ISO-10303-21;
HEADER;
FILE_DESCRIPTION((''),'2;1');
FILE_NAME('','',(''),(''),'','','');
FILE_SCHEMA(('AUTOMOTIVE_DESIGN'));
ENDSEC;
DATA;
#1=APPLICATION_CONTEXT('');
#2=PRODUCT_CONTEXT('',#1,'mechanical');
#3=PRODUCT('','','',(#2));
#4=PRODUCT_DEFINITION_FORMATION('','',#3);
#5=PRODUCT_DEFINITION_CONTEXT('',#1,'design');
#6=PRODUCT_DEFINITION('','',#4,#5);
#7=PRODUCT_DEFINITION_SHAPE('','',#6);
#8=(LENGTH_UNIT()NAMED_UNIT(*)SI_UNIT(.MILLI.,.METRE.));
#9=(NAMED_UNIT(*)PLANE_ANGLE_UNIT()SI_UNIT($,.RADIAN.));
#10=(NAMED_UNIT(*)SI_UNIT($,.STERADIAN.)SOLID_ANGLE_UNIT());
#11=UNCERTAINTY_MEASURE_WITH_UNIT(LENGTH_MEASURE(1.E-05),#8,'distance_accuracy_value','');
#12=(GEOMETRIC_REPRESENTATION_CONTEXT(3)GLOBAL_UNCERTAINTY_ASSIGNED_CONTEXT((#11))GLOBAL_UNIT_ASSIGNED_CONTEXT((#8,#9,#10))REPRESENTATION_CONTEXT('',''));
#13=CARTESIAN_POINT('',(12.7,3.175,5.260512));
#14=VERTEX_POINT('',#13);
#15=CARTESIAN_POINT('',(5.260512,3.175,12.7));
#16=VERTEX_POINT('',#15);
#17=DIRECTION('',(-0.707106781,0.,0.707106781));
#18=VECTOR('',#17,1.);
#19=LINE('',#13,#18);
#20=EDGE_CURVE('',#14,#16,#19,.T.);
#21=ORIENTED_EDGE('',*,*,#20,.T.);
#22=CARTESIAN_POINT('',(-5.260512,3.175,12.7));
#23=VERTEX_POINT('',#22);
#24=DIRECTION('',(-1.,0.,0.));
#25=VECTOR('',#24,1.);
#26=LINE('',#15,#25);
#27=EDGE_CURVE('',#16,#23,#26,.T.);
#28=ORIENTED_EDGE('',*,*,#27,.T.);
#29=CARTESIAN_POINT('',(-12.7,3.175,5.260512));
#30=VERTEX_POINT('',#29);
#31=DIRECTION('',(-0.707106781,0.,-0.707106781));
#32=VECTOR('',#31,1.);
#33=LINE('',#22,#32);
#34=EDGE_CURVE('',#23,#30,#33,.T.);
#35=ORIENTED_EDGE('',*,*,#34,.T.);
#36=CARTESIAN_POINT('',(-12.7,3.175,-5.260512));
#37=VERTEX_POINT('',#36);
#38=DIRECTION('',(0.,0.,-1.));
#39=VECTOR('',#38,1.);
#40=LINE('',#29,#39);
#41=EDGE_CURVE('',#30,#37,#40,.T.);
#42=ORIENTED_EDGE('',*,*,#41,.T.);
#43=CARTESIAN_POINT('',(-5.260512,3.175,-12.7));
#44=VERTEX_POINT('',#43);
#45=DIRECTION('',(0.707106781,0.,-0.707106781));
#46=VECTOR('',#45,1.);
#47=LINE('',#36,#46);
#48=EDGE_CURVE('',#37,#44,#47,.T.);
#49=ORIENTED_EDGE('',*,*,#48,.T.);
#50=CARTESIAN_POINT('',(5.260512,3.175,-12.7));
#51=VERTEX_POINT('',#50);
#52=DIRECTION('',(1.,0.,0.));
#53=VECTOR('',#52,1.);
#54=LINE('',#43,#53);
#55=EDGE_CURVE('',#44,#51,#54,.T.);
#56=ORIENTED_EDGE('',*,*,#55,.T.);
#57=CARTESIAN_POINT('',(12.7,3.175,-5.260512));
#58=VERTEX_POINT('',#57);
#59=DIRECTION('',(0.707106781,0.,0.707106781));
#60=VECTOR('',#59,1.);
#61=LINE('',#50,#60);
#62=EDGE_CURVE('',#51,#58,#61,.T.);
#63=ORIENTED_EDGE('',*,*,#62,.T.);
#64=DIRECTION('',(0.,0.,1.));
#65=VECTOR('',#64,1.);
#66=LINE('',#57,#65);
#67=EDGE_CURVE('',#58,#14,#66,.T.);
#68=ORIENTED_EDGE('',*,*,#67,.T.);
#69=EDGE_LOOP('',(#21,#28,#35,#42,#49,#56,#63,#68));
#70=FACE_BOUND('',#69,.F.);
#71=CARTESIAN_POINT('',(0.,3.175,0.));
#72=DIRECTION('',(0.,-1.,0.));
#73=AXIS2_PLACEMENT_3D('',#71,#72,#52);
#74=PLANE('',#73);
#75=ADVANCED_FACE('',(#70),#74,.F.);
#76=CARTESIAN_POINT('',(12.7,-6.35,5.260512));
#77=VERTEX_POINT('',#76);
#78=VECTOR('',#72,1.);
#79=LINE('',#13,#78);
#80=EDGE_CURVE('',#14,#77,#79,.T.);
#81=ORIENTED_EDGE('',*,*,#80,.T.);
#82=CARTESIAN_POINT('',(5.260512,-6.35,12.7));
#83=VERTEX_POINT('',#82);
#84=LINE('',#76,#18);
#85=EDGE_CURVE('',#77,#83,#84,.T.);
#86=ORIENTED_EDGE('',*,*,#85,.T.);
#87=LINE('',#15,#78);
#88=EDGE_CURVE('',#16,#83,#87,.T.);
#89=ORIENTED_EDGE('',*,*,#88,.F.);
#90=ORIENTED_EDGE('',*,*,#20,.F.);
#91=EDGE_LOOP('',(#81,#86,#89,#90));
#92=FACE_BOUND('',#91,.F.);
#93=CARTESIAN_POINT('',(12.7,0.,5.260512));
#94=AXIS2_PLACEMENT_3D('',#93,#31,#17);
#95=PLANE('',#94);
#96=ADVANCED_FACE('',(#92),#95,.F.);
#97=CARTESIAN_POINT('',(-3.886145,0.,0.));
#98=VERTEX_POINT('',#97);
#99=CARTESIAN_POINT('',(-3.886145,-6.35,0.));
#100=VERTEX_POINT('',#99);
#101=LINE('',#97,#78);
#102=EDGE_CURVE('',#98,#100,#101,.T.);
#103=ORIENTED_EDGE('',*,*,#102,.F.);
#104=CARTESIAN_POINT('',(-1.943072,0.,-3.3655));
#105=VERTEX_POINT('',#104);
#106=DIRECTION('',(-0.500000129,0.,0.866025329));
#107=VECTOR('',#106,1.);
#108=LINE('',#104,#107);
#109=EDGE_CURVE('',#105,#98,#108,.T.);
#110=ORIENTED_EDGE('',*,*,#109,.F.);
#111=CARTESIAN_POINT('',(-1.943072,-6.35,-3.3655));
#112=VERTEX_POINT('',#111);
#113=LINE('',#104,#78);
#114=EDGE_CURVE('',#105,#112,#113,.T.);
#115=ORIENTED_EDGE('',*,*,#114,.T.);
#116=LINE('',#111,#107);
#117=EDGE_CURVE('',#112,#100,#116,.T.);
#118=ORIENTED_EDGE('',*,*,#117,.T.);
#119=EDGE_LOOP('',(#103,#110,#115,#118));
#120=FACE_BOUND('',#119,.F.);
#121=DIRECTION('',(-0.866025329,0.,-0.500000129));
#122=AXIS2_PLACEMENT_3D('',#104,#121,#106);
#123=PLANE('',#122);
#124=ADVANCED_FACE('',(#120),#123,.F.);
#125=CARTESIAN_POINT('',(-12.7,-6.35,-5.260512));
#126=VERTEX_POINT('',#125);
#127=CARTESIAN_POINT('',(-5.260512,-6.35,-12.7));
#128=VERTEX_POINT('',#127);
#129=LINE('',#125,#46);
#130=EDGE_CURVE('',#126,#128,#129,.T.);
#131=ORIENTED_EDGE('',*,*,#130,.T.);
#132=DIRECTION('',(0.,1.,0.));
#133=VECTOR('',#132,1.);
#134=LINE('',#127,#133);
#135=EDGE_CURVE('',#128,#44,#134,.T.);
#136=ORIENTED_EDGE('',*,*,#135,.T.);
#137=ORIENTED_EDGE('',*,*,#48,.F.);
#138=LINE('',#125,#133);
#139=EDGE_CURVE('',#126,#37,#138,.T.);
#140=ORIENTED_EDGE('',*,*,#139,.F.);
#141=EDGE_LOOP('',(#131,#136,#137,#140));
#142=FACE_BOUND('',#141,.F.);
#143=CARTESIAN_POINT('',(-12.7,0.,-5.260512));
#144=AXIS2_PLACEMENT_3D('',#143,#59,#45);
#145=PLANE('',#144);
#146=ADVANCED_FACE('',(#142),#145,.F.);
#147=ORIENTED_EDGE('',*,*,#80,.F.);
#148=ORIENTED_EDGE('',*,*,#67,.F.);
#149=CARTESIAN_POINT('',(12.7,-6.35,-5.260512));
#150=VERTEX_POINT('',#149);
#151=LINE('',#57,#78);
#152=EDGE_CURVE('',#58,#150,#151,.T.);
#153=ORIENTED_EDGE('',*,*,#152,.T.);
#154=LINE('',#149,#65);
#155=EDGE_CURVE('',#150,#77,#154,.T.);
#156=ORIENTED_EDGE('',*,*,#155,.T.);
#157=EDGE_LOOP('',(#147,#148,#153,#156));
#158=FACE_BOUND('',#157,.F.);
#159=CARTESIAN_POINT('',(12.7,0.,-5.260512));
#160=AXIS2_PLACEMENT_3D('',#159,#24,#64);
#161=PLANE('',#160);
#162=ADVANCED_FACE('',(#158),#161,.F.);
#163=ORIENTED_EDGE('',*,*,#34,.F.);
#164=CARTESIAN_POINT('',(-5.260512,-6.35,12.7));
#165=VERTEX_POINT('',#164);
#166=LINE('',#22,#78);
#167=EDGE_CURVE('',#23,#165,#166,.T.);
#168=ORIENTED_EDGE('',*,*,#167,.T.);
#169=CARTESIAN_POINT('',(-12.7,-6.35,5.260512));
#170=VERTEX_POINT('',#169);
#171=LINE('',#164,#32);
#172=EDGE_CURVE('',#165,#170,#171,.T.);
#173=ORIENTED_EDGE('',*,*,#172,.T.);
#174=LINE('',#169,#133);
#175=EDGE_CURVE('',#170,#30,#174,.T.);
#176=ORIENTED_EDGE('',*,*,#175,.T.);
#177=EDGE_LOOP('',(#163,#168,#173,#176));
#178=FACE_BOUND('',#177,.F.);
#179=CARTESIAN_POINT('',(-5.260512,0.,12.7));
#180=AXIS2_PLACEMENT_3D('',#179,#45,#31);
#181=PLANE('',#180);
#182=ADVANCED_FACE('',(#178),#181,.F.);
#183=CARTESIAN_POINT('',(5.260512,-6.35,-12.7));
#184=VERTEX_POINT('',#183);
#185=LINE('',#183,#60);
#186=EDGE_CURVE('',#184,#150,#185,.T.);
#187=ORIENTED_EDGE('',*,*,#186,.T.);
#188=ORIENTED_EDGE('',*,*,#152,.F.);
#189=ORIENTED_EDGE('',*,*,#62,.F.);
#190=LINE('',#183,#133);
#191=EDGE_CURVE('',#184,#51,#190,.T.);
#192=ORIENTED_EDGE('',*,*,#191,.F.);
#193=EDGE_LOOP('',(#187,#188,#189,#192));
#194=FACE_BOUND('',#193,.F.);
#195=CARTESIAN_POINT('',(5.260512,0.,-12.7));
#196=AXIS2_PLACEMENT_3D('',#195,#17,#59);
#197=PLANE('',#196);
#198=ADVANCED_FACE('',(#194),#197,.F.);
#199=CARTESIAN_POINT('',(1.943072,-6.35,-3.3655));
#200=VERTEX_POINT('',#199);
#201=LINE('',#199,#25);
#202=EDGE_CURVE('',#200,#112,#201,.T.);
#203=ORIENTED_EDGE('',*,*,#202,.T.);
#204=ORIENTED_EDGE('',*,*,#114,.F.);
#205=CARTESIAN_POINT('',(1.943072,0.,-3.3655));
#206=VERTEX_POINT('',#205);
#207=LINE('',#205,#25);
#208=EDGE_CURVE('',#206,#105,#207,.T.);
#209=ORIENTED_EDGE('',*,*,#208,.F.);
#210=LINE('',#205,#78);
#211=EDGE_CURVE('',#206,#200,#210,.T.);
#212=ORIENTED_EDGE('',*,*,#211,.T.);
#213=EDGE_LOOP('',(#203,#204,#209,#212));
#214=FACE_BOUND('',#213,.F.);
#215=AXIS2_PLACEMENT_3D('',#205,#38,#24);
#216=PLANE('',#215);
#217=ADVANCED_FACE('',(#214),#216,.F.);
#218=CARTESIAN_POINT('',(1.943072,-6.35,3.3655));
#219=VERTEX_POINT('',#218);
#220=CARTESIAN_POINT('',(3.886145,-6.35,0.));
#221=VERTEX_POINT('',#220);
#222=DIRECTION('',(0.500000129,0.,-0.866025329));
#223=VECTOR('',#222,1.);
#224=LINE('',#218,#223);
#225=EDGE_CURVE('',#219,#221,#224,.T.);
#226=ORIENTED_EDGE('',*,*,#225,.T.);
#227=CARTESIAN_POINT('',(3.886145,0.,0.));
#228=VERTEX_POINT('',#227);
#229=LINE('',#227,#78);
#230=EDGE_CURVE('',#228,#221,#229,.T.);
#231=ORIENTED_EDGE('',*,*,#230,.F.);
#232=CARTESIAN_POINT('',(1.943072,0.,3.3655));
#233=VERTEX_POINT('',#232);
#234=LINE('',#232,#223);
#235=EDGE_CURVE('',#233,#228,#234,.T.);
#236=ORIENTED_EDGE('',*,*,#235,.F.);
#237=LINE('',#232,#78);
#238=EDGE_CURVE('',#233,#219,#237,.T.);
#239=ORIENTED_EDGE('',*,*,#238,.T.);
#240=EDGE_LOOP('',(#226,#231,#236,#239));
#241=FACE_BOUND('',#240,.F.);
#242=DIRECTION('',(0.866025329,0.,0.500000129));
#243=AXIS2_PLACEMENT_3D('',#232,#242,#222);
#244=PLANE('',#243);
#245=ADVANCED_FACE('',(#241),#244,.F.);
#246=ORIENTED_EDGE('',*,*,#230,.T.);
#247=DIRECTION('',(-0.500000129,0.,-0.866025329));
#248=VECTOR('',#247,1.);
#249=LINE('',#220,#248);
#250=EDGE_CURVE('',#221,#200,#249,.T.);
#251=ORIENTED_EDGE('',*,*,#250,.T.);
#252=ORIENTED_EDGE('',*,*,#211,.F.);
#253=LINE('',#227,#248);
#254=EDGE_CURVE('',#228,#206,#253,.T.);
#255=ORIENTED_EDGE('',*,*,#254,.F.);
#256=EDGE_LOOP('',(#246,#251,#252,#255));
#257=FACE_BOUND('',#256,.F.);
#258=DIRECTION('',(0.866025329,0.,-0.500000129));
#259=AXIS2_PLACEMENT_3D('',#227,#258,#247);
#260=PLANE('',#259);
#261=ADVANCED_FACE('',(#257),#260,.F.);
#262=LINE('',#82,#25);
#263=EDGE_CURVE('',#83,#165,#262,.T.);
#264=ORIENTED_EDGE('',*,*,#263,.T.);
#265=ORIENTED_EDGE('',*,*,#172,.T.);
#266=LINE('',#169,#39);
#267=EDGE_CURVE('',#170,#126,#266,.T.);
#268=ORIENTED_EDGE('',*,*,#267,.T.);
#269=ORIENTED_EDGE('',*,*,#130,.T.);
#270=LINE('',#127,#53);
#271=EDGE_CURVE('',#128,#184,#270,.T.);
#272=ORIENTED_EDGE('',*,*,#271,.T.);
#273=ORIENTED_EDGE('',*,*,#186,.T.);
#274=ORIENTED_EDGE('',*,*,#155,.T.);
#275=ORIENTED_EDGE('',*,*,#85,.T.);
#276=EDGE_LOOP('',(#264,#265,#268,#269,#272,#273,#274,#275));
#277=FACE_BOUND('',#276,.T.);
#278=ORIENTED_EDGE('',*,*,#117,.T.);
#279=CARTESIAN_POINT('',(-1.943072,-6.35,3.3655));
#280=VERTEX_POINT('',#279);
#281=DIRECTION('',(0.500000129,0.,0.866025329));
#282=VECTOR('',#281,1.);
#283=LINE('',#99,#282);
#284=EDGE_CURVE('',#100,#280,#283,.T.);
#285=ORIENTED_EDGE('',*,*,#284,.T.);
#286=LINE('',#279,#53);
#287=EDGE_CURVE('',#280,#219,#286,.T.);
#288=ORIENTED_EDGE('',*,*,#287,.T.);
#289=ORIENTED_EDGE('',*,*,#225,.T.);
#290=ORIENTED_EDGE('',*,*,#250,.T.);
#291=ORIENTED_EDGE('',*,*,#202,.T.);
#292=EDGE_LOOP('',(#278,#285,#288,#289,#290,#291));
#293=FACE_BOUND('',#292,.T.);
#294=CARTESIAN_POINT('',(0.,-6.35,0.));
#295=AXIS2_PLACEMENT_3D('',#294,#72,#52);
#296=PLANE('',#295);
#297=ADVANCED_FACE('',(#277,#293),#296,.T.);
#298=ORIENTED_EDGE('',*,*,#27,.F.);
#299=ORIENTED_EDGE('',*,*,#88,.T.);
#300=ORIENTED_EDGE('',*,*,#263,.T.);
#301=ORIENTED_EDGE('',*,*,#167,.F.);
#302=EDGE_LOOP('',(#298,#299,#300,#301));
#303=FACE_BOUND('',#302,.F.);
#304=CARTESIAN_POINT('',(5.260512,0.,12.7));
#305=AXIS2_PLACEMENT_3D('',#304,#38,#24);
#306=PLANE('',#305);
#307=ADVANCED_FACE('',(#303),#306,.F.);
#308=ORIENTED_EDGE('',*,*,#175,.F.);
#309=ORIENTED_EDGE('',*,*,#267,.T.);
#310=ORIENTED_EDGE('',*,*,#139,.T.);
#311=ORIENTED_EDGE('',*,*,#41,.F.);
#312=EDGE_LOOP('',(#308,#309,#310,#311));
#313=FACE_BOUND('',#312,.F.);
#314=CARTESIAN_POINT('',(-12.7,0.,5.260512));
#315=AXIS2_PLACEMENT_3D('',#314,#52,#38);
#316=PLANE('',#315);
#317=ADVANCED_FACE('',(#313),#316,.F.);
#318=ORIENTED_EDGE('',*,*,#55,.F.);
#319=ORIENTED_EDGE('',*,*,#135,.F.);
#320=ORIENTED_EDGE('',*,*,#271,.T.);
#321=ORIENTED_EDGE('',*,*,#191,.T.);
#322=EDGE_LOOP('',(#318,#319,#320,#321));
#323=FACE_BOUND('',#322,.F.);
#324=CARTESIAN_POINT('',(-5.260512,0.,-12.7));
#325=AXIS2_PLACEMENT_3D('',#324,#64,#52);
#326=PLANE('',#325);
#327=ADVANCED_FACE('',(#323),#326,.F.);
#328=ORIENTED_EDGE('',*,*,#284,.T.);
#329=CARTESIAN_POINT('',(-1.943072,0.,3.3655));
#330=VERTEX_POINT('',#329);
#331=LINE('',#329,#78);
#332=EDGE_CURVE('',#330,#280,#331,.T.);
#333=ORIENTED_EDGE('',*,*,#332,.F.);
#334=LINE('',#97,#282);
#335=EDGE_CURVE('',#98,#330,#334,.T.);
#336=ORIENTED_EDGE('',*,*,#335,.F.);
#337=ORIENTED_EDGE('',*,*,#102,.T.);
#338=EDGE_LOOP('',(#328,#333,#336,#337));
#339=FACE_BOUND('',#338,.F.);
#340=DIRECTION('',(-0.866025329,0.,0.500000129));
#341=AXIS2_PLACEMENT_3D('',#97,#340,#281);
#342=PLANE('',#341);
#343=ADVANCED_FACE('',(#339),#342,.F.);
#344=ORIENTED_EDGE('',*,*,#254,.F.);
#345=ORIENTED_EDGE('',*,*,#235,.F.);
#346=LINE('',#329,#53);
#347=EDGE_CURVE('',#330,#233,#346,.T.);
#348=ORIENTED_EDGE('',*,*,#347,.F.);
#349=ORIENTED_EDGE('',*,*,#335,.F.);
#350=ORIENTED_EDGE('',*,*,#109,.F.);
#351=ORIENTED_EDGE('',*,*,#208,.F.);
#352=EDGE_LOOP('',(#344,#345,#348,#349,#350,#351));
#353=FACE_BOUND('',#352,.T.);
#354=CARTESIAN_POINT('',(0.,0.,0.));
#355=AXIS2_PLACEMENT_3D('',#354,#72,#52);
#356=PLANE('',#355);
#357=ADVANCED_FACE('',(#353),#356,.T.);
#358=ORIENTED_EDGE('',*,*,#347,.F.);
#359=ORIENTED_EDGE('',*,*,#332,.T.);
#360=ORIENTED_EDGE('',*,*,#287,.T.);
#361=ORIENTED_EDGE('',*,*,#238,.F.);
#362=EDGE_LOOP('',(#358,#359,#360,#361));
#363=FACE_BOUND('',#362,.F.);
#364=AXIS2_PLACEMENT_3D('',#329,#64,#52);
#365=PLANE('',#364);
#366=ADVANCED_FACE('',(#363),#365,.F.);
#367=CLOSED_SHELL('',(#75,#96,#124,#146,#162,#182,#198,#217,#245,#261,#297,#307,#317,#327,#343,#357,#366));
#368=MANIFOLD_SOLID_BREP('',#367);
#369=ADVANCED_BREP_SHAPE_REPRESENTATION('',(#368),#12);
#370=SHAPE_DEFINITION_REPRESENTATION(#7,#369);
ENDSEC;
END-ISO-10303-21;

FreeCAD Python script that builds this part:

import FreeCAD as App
import Part
import Sketcher
Q = App.Units.Quantity

doc = App.newDocument("Part")
body = doc.addObject("PartDesign::Body", "Body")

# Sketch on XZ plane
sketch1 = doc.addObject("Sketcher::SketchObject", "Sketch")
body.addObject(sketch1)
sketch1.AttachmentSupport = (doc.XZ_Plane, [""])
sketch1.MapMode = "FlatFace"
sketch1.addGeometry([
    Part.LineSegment(App.Vector(5, 13, 0), App.Vector(-5, 13, 0)),  # 0
    Part.LineSegment(App.Vector(-5, 13, 0), App.Vector(-13, 5, 0)),  # 1
    Part.LineSegment(App.Vector(-13, 5, 0), App.Vector(-13, -5, 0)),  # 2
    Part.LineSegment(App.Vector(-13, -5, 0), App.Vector(-5, -13, 0)),  # 3
    Part.LineSegment(App.Vector(-5, -13, 0), App.Vector(5, -13, 0)),  # 4
    Part.LineSegment(App.Vector(5, -13, 0), App.Vector(13, -5, 0)),  # 5
    Part.LineSegment(App.Vector(13, -5, 0), App.Vector(13, 5, 0)),  # 6
    Part.LineSegment(App.Vector(13, 5, 0), App.Vector(5, 13, 0)),  # 7
], False)
sketch1.addConstraint([
    Sketcher.Constraint("Coincident", 0, 2, 1, 1),
    Sketcher.Constraint("Coincident", 1, 2, 2, 1),
    Sketcher.Constraint("Coincident", 2, 2, 3, 1),
    Sketcher.Constraint("Coincident", 3, 2, 4, 1),
    Sketcher.Constraint("Coincident", 4, 2, 5, 1),
    Sketcher.Constraint("Coincident", 5, 2, 6, 1),
    Sketcher.Constraint("Coincident", 6, 2, 7, 1),
    Sketcher.Constraint("Coincident", 7, 2, 0, 1),
    Sketcher.Constraint("Horizontal", 0),
    Sketcher.Constraint("Vertical", 2),
    Sketcher.Constraint("Horizontal", 4),
    Sketcher.Constraint("Vertical", 6),
    Sketcher.Constraint("Symmetric", 0, 2, 4, 2, -1, 1),
    Sketcher.Constraint("Symmetric", 1, 2, 5, 2, -1, 1),
    Sketcher.Constraint("Perpendicular", 1, 3),
    Sketcher.Constraint("Perpendicular", 5, 7),
    Sketcher.Constraint("Horizontal", 2, 2, 5, 2),
    Sketcher.Constraint("Horizontal", 1, 2, 6, 2),
    Sketcher.Constraint("Vertical", 0, 2, 3, 2),
    Sketcher.Constraint("Equal", 4, 2),
    Sketcher.Constraint("DistanceY", 3, 2, 0, 2, Q("1 in")),
    Sketcher.Constraint("DistanceX", 0, 2, 0, 1, Q("10.521024 mm")),
])
pad1 = doc.addObject("PartDesign::Pad", "Pad")
body.addObject(pad1)
pad1.Profile = sketch1
pad1.Length = Q("0.125 in")
pad1.Reversed = True

# Sketch on XZ plane
sketch2 = doc.addObject("Sketcher::SketchObject", "Sketch001")
body.addObject(sketch2)
sketch2.AttachmentSupport = (doc.XZ_Plane, [""])
sketch2.MapMode = "FlatFace"
sketch2.addGeometry([
    Part.LineSegment(App.Vector(5.3, -12.7, 0), App.Vector(12.7, -5.3, 0)),  # 0
    Part.LineSegment(App.Vector(12.7, -5.3, 0), App.Vector(12.7, 5.3, 0)),  # 1
    Part.LineSegment(App.Vector(12.7, 5.3, 0), App.Vector(5.3, 12.7, 0)),  # 2
    Part.LineSegment(App.Vector(5.3, 12.7, 0), App.Vector(-5.3, 12.7, 0)),  # 3
    Part.LineSegment(App.Vector(-5.3, 12.7, 0), App.Vector(-12.7, 5.3, 0)),  # 4
    Part.LineSegment(App.Vector(-12.7, 5.3, 0), App.Vector(-12.7, -5.3, 0)),  # 5
    Part.LineSegment(App.Vector(-12.7, -5.3, 0), App.Vector(-5.3, -12.7, 0)),  # 6
    Part.LineSegment(App.Vector(-5.3, -12.7, 0), App.Vector(5.3, -12.7, 0)),  # 7
    Part.LineSegment(App.Vector(-1.9, -3.4, 0), App.Vector(-3.9, 0, 0)),  # 8
    Part.LineSegment(App.Vector(-3.9, 0, 0), App.Vector(-1.9, 3.4, 0)),  # 9
    Part.LineSegment(App.Vector(-1.9, 3.4, 0), App.Vector(1.9, 3.4, 0)),  # 10
    Part.LineSegment(App.Vector(1.9, 3.4, 0), App.Vector(3.9, 0, 0)),  # 11
    Part.LineSegment(App.Vector(3.9, 0, 0), App.Vector(1.9, -3.4, 0)),  # 12
    Part.LineSegment(App.Vector(1.9, -3.4, 0), App.Vector(-1.9, -3.4, 0)),  # 13
], False)
sketch2.addConstraint([
    Sketcher.Constraint("Coincident", 0, 2, 1, 1),
    Sketcher.Constraint("Coincident", 1, 2, 2, 1),
    Sketcher.Constraint("Coincident", 2, 2, 3, 1),
    Sketcher.Constraint("Coincident", 3, 2, 4, 1),
    Sketcher.Constraint("Coincident", 4, 2, 5, 1),
    Sketcher.Constraint("Coincident", 5, 2, 6, 1),
    Sketcher.Constraint("Coincident", 6, 2, 7, 1),
    Sketcher.Constraint("Coincident", 7, 2, 0, 1),
    Sketcher.Constraint("Coincident", 8, 2, 9, 1),
    Sketcher.Constraint("Coincident", 9, 2, 10, 1),
    Sketcher.Constraint("Coincident", 10, 2, 11, 1),
    Sketcher.Constraint("Coincident", 11, 2, 12, 1),
    Sketcher.Constraint("Coincident", 12, 2, 13, 1),
    Sketcher.Constraint("Coincident", 13, 2, 8, 1),
    Sketcher.Constraint("Vertical", 1),
    Sketcher.Constraint("Horizontal", 3),
    Sketcher.Constraint("Vertical", 5),
    Sketcher.Constraint("Horizontal", 7),
    Sketcher.Constraint("Horizontal", 10),
    Sketcher.Constraint("Horizontal", 13),
    Sketcher.Constraint("Symmetric", 0, 2, 4, 2, -1, 1),
    Sketcher.Constraint("Symmetric", 2, 2, 6, 2, -1, 1),
    Sketcher.Constraint("Symmetric", 8, 2, 11, 2, -1, 1),
    Sketcher.Constraint("Symmetric", 9, 2, 12, 2, -1, 1),
    Sketcher.Constraint("PointOnObject", 8, 2, -1),
    Sketcher.Constraint("Perpendicular", 0, 2),
    Sketcher.Constraint("Perpendicular", 2, 4),
    Sketcher.Constraint("Perpendicular", 4, 6),
    Sketcher.Constraint("Parallel", 8, 11),
    Sketcher.Constraint("Horizontal", 1, 2, 4, 2),
    Sketcher.Constraint("Vertical", 3, 2, 6, 2),
    Sketcher.Constraint("Vertical", 10, 2, 12, 2),
    Sketcher.Constraint("Equal", 7, 1),
    Sketcher.Constraint("Angle", 8, Q("120.000009 deg")),
    Sketcher.Constraint("DistanceX", 4, 2, 1, 2, Q("1 in")),
    Sketcher.Constraint("DistanceY", 12, 2, 10, 2, Q("0.265 in")),
    Sketcher.Constraint("DistanceX", 3, 2, 3, 1, Q("10.521024 mm")),
    Sketcher.Constraint("DistanceX", 10, 1, 10, 2, Q("3.886144 mm")),
])
pad2 = doc.addObject("PartDesign::Pad", "Pad001")
body.addObject(pad2)
pad2.Profile = sketch2
pad2.Length = Q("0.25 in")

doc.recompute()
